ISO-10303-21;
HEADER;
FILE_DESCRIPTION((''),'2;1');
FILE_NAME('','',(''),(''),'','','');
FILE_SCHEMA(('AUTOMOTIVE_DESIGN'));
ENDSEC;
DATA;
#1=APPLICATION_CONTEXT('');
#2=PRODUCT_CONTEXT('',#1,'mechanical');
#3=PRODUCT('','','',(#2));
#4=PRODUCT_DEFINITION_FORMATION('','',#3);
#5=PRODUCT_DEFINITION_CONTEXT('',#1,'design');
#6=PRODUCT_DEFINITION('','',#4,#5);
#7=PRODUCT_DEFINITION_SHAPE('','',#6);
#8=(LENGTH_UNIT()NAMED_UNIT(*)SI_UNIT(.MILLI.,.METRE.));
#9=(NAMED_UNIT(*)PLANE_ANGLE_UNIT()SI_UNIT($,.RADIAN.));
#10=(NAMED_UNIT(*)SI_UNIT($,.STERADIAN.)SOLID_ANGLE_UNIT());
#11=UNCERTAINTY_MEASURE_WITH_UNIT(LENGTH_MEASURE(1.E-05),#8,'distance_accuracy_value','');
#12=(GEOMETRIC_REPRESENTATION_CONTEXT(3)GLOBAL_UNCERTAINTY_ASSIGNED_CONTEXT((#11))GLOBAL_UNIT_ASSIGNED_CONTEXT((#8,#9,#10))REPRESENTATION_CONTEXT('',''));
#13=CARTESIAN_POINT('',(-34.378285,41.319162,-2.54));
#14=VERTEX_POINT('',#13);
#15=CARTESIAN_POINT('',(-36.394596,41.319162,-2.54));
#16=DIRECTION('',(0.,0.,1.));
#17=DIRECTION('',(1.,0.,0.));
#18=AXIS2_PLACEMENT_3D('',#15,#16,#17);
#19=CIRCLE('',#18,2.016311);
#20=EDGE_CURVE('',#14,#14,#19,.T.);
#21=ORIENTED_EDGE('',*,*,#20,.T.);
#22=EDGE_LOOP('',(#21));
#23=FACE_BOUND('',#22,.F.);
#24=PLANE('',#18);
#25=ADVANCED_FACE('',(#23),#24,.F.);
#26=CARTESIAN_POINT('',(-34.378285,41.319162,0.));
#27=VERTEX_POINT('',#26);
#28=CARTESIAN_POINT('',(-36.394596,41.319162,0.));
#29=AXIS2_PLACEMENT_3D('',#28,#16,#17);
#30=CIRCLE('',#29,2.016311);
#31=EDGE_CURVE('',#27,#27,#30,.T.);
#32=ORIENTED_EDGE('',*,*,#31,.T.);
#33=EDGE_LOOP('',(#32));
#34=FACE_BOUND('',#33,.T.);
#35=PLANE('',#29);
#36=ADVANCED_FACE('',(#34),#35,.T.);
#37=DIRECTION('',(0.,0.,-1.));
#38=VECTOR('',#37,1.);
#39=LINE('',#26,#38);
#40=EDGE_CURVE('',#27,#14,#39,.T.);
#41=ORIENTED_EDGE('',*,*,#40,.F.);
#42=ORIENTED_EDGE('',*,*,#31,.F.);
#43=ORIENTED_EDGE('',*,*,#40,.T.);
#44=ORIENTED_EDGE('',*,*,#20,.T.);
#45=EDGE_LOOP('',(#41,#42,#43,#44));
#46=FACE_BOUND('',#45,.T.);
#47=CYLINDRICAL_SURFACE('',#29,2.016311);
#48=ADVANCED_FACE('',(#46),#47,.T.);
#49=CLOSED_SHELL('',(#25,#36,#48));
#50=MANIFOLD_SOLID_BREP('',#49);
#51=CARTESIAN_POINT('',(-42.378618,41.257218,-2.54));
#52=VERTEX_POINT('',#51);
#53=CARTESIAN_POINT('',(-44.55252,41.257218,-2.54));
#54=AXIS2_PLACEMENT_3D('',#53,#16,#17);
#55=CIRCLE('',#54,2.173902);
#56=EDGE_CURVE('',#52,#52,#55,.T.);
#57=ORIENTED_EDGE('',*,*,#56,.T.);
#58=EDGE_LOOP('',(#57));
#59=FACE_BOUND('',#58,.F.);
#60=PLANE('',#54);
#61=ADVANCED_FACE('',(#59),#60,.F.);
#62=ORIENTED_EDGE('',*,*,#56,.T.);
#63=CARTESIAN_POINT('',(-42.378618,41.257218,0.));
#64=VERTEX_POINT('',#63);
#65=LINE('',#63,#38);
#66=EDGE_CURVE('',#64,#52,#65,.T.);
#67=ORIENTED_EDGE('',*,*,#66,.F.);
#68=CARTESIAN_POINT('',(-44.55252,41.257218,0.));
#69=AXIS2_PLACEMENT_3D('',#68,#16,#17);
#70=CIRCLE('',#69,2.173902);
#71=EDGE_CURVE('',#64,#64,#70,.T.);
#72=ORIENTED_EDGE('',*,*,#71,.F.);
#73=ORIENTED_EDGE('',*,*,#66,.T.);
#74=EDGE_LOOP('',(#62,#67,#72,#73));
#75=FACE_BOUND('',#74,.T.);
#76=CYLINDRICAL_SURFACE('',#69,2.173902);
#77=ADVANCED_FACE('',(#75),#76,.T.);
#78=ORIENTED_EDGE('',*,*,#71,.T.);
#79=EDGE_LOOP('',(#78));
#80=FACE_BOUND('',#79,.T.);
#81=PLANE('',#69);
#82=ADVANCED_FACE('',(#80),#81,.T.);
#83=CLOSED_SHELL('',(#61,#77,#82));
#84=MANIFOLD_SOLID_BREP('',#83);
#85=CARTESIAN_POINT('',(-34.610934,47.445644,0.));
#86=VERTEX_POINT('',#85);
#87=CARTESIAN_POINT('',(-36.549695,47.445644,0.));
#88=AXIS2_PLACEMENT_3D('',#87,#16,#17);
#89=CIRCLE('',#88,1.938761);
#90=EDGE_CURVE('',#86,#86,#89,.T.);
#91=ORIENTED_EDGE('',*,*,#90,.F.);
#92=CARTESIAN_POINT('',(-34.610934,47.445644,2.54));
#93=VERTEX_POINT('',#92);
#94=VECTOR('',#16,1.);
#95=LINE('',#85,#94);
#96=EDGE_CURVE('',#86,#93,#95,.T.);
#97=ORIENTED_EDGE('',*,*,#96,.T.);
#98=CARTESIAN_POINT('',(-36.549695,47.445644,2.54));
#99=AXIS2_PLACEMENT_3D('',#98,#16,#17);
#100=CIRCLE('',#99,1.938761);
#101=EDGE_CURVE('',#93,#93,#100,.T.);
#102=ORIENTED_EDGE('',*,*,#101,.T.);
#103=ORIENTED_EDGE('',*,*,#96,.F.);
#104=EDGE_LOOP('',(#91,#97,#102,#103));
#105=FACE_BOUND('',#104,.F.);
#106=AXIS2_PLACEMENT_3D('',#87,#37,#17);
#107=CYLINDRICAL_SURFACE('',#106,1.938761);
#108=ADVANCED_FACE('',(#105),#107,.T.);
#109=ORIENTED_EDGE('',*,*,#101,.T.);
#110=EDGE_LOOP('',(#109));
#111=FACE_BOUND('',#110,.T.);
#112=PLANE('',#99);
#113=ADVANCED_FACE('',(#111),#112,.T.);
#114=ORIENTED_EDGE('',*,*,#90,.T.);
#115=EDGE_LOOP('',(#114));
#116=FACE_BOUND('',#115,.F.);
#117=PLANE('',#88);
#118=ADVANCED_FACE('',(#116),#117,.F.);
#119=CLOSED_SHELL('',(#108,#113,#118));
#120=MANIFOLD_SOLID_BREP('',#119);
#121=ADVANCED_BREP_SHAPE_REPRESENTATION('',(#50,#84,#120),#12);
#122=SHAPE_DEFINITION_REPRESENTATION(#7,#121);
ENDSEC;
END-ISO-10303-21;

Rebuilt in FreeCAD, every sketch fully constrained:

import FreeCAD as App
import Part
import Sketcher
Q = App.Units.Quantity

doc = App.newDocument("Part")
body = doc.addObject("PartDesign::Body", "Body")
body.AllowCompound = True

# Sketch on XY plane
sketch1 = body.newObject("Sketcher::SketchObject", "Sketch")
sketch1.AttachmentSupport = (doc.getObject("XY_Plane"), [""])
sketch1.MapMode = "FlatFace"
sketch1.addGeometry(Part.Circle(App.Vector(-44.6, 41.3, 0), App.Vector(0, 0, 1), 2.2), False)
sketch1.addGeometry(Part.Circle(App.Vector(-36.4, 41.3, 0), App.Vector(0, 0, 1), 2), False)
sketch1.addConstraint(Sketcher.Constraint("Diameter", 0, 4.347804))
sketch1.addConstraint(Sketcher.Constraint("Diameter", 1, 4.032622))
sketch1.addConstraint(Sketcher.Constraint("DistanceY", -1, 1, 0, 3, Q("1.6242999 in")))
sketch1.addConstraint(Sketcher.Constraint("DistanceX", 0, 3, -1, 1, 44.55252))
sketch1.addConstraint(Sketcher.Constraint("DistanceX", 1, 3, -1, 1, 36.394596))
sketch1.addConstraint(Sketcher.Constraint("DistanceY", -1, 1, 1, 3, 41.319162))
pad1 = body.newObject("PartDesign::Pad", "Pad")
pad1.Profile = sketch1
pad1.Length = Q("0.1 in")
pad1.Reversed = True
body2 = doc.addObject("PartDesign::Body", "Body001")

# Sketch on XY plane
sketch2 = body2.newObject("Sketcher::SketchObject", "Sketch001")
sketch2.AttachmentSupport = (doc.getObject("XY_Plane001"), [""])
sketch2.MapMode = "FlatFace"
sketch2.addGeometry(Part.Circle(App.Vector(-36.5, 47.4, 0), App.Vector(0, 0, 1), 1.9), False)
sketch2.addConstraint(Sketcher.Constraint("Diameter", 0, 3.877522))
sketch2.addConstraint(Sketcher.Constraint("DistanceX", 0, 3, -1, 1, 36.549695))
sketch2.addConstraint(Sketcher.Constraint("DistanceY", -1, 1, 0, 3, 47.445644))
pad2 = body2.newObject("PartDesign::Pad", "Pad001")
pad2.Profile = sketch2
pad2.Length = Q("0.1 in")

doc.recompute()
